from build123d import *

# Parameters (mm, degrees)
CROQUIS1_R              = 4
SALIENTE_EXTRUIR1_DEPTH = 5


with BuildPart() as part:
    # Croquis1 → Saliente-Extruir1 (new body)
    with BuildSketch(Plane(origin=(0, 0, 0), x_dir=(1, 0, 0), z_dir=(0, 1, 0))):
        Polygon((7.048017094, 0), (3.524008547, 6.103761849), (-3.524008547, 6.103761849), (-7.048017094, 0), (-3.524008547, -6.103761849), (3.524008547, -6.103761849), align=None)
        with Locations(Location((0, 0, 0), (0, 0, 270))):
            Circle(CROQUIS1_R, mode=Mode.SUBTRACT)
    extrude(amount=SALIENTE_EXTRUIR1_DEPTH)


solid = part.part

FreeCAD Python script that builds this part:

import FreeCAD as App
import Part
import Sketcher
from FreeCAD import Vector
Q = App.Units.Quantity

doc = App.newDocument("Part")
params = doc.addObject("Spreadsheet::Sheet", "Params")
for row, (alias, value) in enumerate([
    ("sketch1_diameter", "8 mm"),
    ("pad1_length", "5 mm"),
], start=1):
    params.set(f"A{row}", alias)
    params.set(f"B{row}", "=" + value)
    params.setAlias(f"B{row}", alias)

body = doc.addObject("PartDesign::Body", "Body")

# Sketch on XZ plane
sketch1 = body.newObject("Sketcher::SketchObject", "Sketch")
sketch1.AttachmentSupport = (doc.getObject("XZ_Plane"), [""])
sketch1.MapMode = "FlatFace"
sketch1.addGeometry([
    Part.LineSegment(Vector(7, 0, 0), Vector(3.5, -6.1, 0)),  # 0
    Part.LineSegment(Vector(3.5, -6.1, 0), Vector(-3.5, -6.1, 0)),  # 1
    Part.LineSegment(Vector(-3.5, -6.1, 0), Vector(-7, 0, 0)),  # 2
    Part.LineSegment(Vector(-7, 0, 0), Vector(-3.5, 6.1, 0)),  # 3
    Part.LineSegment(Vector(-3.5, 6.1, 0), Vector(3.5, 6.1, 0)),  # 4
    Part.LineSegment(Vector(3.5, 6.1, 0), Vector(7, 0, 0)),  # 5
    Part.Circle(Vector(0, 0, 0), Vector(0, 0, 1), 4),  # 6
], False)
sketch1.addConstraint([
    Sketcher.Constraint("Coincident", 0, 2, 1, 1),
    Sketcher.Constraint("Coincident", 1, 2, 2, 1),
    Sketcher.Constraint("Coincident", 2, 2, 3, 1),
    Sketcher.Constraint("Coincident", 3, 2, 4, 1),
    Sketcher.Constraint("Coincident", 4, 2, 5, 1),
    Sketcher.Constraint("Coincident", 5, 2, 0, 1),
    Sketcher.Constraint("Horizontal", 1),
    Sketcher.Constraint("Horizontal", 4),
    Sketcher.Constraint("Coincident", 6, 3, -1, 1),
    Sketcher.Constraint("Symmetric", 0, 2, 3, 2, -1, 1),
    Sketcher.Constraint("Symmetric", 2, 2, 5, 2, -1, 1),
    Sketcher.Constraint("PointOnObject", 2, 2, -1),
    Sketcher.Constraint("Parallel", 2, 5),
    Sketcher.Constraint("Vertical", 1, 2, 3, 2),
    Sketcher.Constraint("Diameter", 6, Q("8 mm")),
    Sketcher.Constraint("Angle", 0, Q("-120 deg")),
    Sketcher.Constraint("DistanceX", 1, 2, 1, 1, Q("7.048017 mm")),
    Sketcher.Constraint("DistanceY", 0, 2, -1, 1, Q("6.103762 mm")),
])
sketch1.setExpression("Constraints[14]", "Params.sketch1_diameter")
pad1 = body.newObject("PartDesign::Pad", "Pad")
pad1.Profile = sketch1
pad1.setExpression("Length", "Params.pad1_length")
pad1.Reversed = True

doc.recompute()
